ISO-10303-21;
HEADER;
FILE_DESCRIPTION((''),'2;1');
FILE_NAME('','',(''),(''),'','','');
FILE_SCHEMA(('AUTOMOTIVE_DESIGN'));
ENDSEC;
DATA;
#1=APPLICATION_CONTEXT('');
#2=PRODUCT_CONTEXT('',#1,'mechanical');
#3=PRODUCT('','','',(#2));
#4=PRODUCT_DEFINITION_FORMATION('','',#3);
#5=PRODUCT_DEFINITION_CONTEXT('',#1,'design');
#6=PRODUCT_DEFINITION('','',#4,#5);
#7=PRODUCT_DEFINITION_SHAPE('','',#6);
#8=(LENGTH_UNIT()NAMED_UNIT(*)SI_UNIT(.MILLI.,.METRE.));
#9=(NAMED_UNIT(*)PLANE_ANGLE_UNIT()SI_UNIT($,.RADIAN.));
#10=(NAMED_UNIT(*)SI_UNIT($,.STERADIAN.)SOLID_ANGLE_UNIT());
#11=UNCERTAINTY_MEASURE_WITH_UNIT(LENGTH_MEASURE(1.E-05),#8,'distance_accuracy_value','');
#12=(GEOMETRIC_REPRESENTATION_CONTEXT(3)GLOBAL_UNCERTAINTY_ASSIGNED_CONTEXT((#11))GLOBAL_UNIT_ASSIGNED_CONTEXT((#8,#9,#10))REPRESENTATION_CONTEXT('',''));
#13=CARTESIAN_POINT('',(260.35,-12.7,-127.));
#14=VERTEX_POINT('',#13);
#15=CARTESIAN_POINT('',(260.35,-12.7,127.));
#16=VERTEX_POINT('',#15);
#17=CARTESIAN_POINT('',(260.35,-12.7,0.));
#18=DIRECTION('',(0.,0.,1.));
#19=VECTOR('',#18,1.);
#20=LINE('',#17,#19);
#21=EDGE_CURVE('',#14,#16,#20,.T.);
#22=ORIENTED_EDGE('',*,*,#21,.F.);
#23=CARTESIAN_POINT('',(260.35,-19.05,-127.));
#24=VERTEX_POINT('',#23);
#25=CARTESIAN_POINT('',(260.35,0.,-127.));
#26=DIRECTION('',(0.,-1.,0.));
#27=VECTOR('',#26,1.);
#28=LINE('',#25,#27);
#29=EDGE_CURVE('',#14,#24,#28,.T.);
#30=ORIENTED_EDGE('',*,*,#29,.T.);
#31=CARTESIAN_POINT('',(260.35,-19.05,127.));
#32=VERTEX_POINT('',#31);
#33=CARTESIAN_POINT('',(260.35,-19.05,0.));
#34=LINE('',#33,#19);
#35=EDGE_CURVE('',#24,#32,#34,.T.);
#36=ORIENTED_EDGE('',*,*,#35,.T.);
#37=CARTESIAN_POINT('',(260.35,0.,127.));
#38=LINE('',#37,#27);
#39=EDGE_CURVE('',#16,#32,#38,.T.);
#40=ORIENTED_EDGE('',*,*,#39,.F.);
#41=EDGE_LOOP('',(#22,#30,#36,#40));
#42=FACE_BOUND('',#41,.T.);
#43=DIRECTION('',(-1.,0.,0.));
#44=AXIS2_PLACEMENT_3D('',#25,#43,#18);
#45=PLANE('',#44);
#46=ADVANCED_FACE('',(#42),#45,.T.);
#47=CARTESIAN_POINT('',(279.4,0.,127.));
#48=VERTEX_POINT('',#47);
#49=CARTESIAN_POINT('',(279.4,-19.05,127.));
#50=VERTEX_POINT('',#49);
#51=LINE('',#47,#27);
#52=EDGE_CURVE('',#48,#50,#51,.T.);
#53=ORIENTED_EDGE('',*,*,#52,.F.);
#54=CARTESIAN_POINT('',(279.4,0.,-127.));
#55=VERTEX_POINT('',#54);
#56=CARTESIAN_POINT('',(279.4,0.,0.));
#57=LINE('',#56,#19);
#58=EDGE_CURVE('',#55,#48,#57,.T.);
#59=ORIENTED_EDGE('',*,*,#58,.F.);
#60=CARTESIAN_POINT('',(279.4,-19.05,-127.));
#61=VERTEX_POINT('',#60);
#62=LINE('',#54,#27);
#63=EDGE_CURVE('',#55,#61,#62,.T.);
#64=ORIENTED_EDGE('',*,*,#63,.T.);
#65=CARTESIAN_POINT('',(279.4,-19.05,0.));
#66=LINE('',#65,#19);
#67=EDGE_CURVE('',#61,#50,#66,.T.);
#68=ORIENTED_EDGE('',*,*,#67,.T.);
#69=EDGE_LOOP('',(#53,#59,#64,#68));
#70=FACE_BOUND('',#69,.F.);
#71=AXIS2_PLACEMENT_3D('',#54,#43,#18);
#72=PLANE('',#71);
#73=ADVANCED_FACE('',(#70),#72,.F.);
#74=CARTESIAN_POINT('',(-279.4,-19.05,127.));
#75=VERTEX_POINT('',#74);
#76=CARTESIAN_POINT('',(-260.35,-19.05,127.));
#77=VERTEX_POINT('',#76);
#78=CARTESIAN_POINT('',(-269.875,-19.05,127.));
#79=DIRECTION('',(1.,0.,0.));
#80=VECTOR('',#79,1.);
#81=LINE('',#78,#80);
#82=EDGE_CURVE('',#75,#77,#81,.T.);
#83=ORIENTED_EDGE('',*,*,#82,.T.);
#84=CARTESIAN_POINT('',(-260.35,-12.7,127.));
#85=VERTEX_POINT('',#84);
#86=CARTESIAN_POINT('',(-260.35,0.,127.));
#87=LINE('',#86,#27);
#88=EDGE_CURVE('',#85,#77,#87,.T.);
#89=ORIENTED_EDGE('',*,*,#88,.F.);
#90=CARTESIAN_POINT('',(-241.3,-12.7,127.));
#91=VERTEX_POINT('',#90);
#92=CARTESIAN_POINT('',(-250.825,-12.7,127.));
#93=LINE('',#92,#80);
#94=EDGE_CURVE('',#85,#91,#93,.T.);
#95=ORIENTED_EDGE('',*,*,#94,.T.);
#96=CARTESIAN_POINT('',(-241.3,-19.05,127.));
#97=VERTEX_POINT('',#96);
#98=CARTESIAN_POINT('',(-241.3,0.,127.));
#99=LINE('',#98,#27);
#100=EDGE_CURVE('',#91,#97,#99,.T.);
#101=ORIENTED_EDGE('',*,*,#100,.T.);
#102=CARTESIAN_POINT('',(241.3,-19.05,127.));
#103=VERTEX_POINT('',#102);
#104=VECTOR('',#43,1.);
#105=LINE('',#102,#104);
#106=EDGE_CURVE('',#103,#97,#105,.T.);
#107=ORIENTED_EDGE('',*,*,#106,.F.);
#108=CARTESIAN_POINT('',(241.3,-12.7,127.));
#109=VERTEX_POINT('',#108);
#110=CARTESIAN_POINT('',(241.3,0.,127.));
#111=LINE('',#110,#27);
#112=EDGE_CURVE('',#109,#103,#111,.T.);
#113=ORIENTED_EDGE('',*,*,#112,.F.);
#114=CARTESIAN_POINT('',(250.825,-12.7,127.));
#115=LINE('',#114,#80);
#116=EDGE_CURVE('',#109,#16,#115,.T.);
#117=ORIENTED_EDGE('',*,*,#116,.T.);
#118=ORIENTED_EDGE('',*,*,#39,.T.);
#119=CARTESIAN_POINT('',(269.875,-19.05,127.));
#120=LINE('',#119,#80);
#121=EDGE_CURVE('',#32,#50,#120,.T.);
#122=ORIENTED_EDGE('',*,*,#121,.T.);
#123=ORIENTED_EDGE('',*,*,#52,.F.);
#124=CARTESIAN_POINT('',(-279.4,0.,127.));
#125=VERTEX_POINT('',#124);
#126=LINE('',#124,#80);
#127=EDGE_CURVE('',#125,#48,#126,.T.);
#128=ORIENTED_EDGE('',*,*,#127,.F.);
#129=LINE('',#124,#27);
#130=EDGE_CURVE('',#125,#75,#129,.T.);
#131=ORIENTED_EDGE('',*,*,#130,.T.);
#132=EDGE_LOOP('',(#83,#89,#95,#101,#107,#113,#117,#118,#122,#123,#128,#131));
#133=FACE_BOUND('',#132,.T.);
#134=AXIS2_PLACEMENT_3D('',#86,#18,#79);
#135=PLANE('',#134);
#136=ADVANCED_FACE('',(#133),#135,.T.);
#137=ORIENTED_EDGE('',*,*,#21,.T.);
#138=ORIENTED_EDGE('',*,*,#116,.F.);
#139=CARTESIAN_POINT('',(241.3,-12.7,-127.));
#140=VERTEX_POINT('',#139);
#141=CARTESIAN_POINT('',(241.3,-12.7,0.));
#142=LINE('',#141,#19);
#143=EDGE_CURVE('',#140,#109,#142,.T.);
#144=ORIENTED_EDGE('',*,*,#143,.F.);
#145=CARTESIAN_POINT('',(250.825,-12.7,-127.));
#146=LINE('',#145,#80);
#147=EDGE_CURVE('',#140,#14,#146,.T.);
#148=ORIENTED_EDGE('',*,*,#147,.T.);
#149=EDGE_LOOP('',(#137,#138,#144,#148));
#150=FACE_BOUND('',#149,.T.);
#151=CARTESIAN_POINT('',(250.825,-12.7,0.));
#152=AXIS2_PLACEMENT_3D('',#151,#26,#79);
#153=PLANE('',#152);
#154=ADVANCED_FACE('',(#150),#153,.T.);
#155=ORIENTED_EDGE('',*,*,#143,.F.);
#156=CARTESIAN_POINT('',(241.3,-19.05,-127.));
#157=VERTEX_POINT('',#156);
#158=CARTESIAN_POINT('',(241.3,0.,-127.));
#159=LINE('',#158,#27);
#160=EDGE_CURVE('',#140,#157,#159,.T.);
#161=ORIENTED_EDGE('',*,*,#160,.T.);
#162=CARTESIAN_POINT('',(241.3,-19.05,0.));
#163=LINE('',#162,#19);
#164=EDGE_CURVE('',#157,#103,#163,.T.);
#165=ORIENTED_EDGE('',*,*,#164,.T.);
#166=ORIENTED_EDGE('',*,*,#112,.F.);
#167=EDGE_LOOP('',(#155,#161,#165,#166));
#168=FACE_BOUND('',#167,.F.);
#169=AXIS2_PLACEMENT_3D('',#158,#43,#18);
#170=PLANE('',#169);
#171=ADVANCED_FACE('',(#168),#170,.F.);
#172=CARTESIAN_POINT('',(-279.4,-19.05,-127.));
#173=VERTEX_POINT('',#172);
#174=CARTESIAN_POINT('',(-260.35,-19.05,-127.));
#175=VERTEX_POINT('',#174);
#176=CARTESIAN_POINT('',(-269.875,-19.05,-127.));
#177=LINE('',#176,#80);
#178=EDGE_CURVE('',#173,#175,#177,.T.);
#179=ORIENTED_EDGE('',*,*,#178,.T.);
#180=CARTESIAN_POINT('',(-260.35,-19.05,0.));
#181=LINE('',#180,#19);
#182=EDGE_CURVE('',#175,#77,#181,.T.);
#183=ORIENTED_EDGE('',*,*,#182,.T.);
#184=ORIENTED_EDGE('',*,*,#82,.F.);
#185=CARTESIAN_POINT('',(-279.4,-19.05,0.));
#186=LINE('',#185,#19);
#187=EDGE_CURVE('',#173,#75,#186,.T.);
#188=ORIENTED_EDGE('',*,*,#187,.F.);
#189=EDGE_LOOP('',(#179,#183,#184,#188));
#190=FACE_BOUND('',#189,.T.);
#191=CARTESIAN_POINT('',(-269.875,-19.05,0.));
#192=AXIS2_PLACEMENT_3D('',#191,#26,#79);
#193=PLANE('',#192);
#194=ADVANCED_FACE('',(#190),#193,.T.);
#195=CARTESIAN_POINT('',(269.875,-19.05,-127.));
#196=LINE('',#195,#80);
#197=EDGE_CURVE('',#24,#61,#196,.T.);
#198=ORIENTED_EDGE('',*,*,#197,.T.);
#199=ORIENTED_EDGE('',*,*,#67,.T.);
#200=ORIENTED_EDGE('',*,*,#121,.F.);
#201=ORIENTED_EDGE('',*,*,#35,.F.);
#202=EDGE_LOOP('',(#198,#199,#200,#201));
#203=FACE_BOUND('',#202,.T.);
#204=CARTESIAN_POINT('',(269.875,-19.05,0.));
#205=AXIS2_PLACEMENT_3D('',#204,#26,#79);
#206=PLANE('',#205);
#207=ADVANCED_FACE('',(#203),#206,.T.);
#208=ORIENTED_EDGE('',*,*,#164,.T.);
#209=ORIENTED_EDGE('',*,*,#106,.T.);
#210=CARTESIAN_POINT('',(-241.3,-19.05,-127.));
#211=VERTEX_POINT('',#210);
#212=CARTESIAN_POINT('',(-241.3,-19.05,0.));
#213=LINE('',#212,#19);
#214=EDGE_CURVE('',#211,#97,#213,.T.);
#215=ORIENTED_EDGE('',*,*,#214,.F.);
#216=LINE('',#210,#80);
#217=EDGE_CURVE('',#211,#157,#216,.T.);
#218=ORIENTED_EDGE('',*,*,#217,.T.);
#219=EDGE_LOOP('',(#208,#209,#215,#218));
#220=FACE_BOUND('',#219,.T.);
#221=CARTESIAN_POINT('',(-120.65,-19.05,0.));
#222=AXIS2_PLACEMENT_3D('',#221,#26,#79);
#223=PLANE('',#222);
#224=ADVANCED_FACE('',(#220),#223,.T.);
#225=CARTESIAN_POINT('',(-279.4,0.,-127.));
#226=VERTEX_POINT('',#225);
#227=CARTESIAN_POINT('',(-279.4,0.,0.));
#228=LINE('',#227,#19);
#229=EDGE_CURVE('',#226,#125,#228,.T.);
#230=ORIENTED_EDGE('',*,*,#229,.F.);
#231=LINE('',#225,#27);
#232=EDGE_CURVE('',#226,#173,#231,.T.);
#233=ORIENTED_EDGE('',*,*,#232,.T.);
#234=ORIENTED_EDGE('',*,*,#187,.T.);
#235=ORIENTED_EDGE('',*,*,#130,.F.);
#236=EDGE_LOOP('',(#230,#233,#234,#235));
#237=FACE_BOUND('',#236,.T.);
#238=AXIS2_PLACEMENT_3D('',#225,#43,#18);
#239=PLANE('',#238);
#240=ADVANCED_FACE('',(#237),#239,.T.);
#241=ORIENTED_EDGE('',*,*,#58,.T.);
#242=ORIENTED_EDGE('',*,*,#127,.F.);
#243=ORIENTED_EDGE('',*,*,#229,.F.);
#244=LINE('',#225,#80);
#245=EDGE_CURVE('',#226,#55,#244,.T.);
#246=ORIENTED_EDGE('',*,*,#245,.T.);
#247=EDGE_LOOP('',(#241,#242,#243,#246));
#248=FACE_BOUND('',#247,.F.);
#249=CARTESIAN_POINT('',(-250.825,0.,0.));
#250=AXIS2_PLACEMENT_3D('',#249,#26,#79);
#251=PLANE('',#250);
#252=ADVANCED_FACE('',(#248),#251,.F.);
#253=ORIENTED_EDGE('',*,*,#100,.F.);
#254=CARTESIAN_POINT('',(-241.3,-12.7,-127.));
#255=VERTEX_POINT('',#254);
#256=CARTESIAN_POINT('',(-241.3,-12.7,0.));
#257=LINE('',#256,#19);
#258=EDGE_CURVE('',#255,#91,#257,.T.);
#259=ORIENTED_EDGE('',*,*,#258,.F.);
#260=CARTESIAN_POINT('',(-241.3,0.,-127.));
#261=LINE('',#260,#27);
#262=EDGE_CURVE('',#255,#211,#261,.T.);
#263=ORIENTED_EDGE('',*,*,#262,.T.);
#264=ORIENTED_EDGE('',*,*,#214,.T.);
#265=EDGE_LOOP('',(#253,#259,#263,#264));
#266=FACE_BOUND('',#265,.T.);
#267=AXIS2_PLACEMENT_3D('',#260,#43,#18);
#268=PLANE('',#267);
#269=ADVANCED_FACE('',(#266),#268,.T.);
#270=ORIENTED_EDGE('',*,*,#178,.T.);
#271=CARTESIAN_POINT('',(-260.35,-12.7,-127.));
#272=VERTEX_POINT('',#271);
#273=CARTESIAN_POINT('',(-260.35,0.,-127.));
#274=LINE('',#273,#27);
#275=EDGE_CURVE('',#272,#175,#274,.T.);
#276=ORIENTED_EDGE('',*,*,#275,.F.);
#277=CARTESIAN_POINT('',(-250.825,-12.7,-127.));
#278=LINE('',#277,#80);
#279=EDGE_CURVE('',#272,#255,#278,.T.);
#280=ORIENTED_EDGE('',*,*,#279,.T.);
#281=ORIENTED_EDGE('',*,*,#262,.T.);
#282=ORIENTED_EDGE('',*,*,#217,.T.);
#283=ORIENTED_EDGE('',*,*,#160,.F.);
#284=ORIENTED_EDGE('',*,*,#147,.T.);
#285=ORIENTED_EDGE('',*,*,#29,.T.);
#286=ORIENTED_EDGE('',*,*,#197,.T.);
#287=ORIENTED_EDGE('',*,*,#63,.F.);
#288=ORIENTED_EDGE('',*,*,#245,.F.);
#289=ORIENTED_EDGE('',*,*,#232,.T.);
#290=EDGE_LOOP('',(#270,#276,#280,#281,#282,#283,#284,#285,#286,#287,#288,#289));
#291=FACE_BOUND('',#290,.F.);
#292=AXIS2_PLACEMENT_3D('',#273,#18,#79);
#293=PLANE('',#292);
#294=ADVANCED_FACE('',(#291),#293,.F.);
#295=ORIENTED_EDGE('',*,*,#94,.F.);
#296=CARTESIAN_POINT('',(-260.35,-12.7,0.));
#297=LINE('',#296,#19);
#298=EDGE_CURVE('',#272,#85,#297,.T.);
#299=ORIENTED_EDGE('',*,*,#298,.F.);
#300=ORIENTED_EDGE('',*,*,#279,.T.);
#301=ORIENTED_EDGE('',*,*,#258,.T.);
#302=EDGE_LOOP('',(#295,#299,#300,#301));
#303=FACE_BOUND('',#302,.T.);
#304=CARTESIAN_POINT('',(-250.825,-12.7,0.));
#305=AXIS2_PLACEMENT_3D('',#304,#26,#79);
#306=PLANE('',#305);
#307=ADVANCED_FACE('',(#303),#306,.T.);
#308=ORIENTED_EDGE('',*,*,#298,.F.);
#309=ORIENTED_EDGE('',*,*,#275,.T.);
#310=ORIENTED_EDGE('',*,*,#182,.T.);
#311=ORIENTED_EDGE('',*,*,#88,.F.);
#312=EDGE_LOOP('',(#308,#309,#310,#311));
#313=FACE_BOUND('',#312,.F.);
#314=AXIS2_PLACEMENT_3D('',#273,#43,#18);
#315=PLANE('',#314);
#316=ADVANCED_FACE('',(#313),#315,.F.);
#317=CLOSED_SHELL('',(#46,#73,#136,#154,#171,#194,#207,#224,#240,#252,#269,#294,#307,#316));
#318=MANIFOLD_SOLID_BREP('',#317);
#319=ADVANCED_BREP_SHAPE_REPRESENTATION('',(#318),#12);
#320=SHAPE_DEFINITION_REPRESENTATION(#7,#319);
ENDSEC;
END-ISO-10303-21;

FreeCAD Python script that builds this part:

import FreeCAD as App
import Part
import Sketcher
Q = App.Units.Quantity

doc = App.newDocument("Part")
body = doc.addObject("PartDesign::Body", "Body")

sketch1 = body.newObject("Sketcher::SketchObject", "Sketch")
sketch1.AttachmentSupport = (doc.getObject("XZ_Plane"), [""])
sketch1.MapMode = "FlatFace"
sketch1.addGeometry([
    Part.LineSegment(App.Vector(-279, 127, 0), App.Vector(-279, -127, 0)),
    Part.LineSegment(App.Vector(-279, -127, 0), App.Vector(-260, -127, 0)),
    Part.LineSegment(App.Vector(-260, -127, 0), App.Vector(-260, 127, 0)),
    Part.LineSegment(App.Vector(-260, 127, 0), App.Vector(-279, 127, 0)),
], False)
sketch1.addConstraint([
    Sketcher.Constraint("Coincident", 0, 2, 1, 1),
    Sketcher.Constraint("Coincident", 1, 2, 2, 1),
    Sketcher.Constraint("Coincident", 2, 2, 3, 1),
    Sketcher.Constraint("Coincident", 3, 2, 0, 1),
    Sketcher.Constraint("Vertical", 0),
    Sketcher.Constraint("Horizontal", 1),
    Sketcher.Constraint("Vertical", 2),
    Sketcher.Constraint("Horizontal", 3),
    Sketcher.Constraint("DistanceY", 0, 2, 0, 1, Q("10 in")),
    Sketcher.Constraint("DistanceX", 0, 2, -1, 1, Q("11 in")),
    Sketcher.Constraint("DistanceY", 0, 2, -1, 1, Q("5 in")),
    Sketcher.Constraint("DistanceX", 1, 1, 1, 2, Q("0.75 in")),
])
pad1 = body.newObject("PartDesign::Pad", "Pad")
pad1.Profile = sketch1
pad1.Length = Q("0.75 in")
body2 = doc.addObject("PartDesign::Body", "Body001")

sketch2 = body2.newObject("Sketcher::SketchObject", "Sketch001")
sketch2.AttachmentSupport = (doc.getObject("XZ_Plane001"), [""])
sketch2.MapMode = "FlatFace"
sketch2.addGeometry([
    Part.LineSegment(App.Vector(-241, 127, 0), App.Vector(-241, -127, 0)),
    Part.LineSegment(App.Vector(-241, -127, 0), App.Vector(241, -127, 0)),
    Part.LineSegment(App.Vector(241, -127, 0), App.Vector(241, 127, 0)),
    Part.LineSegment(App.Vector(241, 127, 0), App.Vector(-241, 127, 0)),
], False)
sketch2.addConstraint([
    Sketcher.Constraint("Coincident", 0, 2, 1, 1),
    Sketcher.Constraint("Coincident", 1, 2, 2, 1),
    Sketcher.Constraint("Coincident", 2, 2, 3, 1),
    Sketcher.Constraint("Coincident", 3, 2, 0, 1),
    Sketcher.Constraint("Vertical", 0),
    Sketcher.Constraint("Horizontal", 1),
    Sketcher.Constraint("Vertical", 2),
    Sketcher.Constraint("Horizontal", 3),
    Sketcher.Constraint("Symmetric", 0, 2, 2, 2, -1, 1),
    Sketcher.Constraint("DistanceX", 1, 1, 1, 2, Q("19 in")),
    Sketcher.Constraint("DistanceY", 0, 2, 0, 1, Q("10 in")),
])
pad2 = body2.newObject("PartDesign::Pad", "Pad001")
pad2.Profile = sketch2
pad2.Length = Q("0.75 in")
body3 = doc.addObject("PartDesign::Body", "Body002")

sketch3 = body3.newObject("Sketcher::SketchObject", "Sketch002")
sketch3.AttachmentSupport = (doc.getObject("XZ_Plane002"), [""])
sketch3.MapMode = "FlatFace"
sketch3.addGeometry([
    Part.LineSegment(App.Vector(260, 127, 0), App.Vector(260, -127, 0)),
    Part.LineSegment(App.Vector(260, -127, 0), App.Vector(279, -127, 0)),
    Part.LineSegment(App.Vector(279, -127, 0), App.Vector(279, 127, 0)),
    Part.LineSegment(App.Vector(279, 127, 0), App.Vector(260, 127, 0)),
], False)
sketch3.addConstraint([
    Sketcher.Constraint("Coincident", 0, 2, 1, 1),
    Sketcher.Constraint("Coincident", 1, 2, 2, 1),
    Sketcher.Constraint("Coincident", 2, 2, 3, 1),
    Sketcher.Constraint("Coincident", 3, 2, 0, 1),
    Sketcher.Constraint("Vertical", 0),
    Sketcher.Constraint("Horizontal", 1),
    Sketcher.Constraint("Vertical", 2),
    Sketcher.Constraint("Horizontal", 3),
    Sketcher.Constraint("DistanceY", 0, 2, 0, 1, Q("10 in")),
    Sketcher.Constraint("DistanceY", 0, 2, -1, 1, Q("5 in")),
    Sketcher.Constraint("DistanceX", -1, 1, 1, 2, Q("11 in")),
    Sketcher.Constraint("DistanceX", 1, 1, 1, 2, Q("0.75 in")),
])
pad3 = body3.newObject("PartDesign::Pad", "Pad002")
pad3.Profile = sketch3
pad3.Length = Q("0.75 in")
body.AllowCompound = True
doc.recompute()

boolean = body.newObject("PartDesign::Boolean", "Boolean")
boolean.Type = "Fuse"
boolean.addObjects([body2])
doc.recompute()

boolean2 = body.newObject("PartDesign::Boolean", "Boolean001")
boolean2.Type = "Fuse"
boolean2.addObjects([body3])

sketch4 = body.newObject("Sketcher::SketchObject", "Sketch003")
sketch4.AttachmentSupport = (doc.getObject("XZ_Plane"), [""])
sketch4.MapMode = "FlatFace"
sketch4.addGeometry([
    Part.LineSegment(App.Vector(-260, 127, 0), App.Vector(-260, -127, 0)),
    Part.LineSegment(App.Vector(-260, -127, 0), App.Vector(-241, -127, 0)),
    Part.LineSegment(App.Vector(-241, -127, 0), App.Vector(-241, 127, 0)),
    Part.LineSegment(App.Vector(-241, 127, 0), App.Vector(-260, 127, 0)),
    Part.LineSegment(App.Vector(241, 127, 0), App.Vector(241, -127, 0)),
    Part.LineSegment(App.Vector(241, -127, 0), App.Vector(260, -127, 0)),
    Part.LineSegment(App.Vector(260, -127, 0), App.Vector(260, 127, 0)),
    Part.LineSegment(App.Vector(260, 127, 0), App.Vector(241, 127, 0)),
], False)
sketch4.addConstraint([
    Sketcher.Constraint("Coincident", 0, 2, 1, 1),
    Sketcher.Constraint("Coincident", 1, 2, 2, 1),
    Sketcher.Constraint("Coincident", 2, 2, 3, 1),
    Sketcher.Constraint("Coincident", 3, 2, 0, 1),
    Sketcher.Constraint("Coincident", 4, 2, 5, 1),
    Sketcher.Constraint("Coincident", 5, 2, 6, 1),
    Sketcher.Constraint("Coincident", 6, 2, 7, 1),
    Sketcher.Constraint("Coincident", 7, 2, 4, 1),
    Sketcher.Constraint("Vertical", 0),
    Sketcher.Constraint("Horizontal", 1),
    Sketcher.Constraint("Vertical", 2),
    Sketcher.Constraint("Horizontal", 3),
    Sketcher.Constraint("Vertical", 4),
    Sketcher.Constraint("Horizontal", 5),
    Sketcher.Constraint("Vertical", 6),
    Sketcher.Constraint("Horizontal", 7),
    Sketcher.Constraint("Symmetric", 2, 2, 4, 2, -1, 1),
    Sketcher.Constraint("Symmetric", 0, 2, 6, 2, -1, 1),
    Sketcher.Constraint("Horizontal", 1, 2, 4, 2),
    Sketcher.Constraint("DistanceY", 0, 2, 0, 1, Q("10 in")),
    Sketcher.Constraint("DistanceX", 1, 2, 4, 2, Q("19 in")),
    Sketcher.Constraint("DistanceX", 1, 1, 1, 2, Q("0.75 in")),
])
pad4 = body.newObject("PartDesign::Pad", "Pad003")
pad4.Profile = sketch4
pad4.Length = Q("0.5 in")

doc.recompute()
